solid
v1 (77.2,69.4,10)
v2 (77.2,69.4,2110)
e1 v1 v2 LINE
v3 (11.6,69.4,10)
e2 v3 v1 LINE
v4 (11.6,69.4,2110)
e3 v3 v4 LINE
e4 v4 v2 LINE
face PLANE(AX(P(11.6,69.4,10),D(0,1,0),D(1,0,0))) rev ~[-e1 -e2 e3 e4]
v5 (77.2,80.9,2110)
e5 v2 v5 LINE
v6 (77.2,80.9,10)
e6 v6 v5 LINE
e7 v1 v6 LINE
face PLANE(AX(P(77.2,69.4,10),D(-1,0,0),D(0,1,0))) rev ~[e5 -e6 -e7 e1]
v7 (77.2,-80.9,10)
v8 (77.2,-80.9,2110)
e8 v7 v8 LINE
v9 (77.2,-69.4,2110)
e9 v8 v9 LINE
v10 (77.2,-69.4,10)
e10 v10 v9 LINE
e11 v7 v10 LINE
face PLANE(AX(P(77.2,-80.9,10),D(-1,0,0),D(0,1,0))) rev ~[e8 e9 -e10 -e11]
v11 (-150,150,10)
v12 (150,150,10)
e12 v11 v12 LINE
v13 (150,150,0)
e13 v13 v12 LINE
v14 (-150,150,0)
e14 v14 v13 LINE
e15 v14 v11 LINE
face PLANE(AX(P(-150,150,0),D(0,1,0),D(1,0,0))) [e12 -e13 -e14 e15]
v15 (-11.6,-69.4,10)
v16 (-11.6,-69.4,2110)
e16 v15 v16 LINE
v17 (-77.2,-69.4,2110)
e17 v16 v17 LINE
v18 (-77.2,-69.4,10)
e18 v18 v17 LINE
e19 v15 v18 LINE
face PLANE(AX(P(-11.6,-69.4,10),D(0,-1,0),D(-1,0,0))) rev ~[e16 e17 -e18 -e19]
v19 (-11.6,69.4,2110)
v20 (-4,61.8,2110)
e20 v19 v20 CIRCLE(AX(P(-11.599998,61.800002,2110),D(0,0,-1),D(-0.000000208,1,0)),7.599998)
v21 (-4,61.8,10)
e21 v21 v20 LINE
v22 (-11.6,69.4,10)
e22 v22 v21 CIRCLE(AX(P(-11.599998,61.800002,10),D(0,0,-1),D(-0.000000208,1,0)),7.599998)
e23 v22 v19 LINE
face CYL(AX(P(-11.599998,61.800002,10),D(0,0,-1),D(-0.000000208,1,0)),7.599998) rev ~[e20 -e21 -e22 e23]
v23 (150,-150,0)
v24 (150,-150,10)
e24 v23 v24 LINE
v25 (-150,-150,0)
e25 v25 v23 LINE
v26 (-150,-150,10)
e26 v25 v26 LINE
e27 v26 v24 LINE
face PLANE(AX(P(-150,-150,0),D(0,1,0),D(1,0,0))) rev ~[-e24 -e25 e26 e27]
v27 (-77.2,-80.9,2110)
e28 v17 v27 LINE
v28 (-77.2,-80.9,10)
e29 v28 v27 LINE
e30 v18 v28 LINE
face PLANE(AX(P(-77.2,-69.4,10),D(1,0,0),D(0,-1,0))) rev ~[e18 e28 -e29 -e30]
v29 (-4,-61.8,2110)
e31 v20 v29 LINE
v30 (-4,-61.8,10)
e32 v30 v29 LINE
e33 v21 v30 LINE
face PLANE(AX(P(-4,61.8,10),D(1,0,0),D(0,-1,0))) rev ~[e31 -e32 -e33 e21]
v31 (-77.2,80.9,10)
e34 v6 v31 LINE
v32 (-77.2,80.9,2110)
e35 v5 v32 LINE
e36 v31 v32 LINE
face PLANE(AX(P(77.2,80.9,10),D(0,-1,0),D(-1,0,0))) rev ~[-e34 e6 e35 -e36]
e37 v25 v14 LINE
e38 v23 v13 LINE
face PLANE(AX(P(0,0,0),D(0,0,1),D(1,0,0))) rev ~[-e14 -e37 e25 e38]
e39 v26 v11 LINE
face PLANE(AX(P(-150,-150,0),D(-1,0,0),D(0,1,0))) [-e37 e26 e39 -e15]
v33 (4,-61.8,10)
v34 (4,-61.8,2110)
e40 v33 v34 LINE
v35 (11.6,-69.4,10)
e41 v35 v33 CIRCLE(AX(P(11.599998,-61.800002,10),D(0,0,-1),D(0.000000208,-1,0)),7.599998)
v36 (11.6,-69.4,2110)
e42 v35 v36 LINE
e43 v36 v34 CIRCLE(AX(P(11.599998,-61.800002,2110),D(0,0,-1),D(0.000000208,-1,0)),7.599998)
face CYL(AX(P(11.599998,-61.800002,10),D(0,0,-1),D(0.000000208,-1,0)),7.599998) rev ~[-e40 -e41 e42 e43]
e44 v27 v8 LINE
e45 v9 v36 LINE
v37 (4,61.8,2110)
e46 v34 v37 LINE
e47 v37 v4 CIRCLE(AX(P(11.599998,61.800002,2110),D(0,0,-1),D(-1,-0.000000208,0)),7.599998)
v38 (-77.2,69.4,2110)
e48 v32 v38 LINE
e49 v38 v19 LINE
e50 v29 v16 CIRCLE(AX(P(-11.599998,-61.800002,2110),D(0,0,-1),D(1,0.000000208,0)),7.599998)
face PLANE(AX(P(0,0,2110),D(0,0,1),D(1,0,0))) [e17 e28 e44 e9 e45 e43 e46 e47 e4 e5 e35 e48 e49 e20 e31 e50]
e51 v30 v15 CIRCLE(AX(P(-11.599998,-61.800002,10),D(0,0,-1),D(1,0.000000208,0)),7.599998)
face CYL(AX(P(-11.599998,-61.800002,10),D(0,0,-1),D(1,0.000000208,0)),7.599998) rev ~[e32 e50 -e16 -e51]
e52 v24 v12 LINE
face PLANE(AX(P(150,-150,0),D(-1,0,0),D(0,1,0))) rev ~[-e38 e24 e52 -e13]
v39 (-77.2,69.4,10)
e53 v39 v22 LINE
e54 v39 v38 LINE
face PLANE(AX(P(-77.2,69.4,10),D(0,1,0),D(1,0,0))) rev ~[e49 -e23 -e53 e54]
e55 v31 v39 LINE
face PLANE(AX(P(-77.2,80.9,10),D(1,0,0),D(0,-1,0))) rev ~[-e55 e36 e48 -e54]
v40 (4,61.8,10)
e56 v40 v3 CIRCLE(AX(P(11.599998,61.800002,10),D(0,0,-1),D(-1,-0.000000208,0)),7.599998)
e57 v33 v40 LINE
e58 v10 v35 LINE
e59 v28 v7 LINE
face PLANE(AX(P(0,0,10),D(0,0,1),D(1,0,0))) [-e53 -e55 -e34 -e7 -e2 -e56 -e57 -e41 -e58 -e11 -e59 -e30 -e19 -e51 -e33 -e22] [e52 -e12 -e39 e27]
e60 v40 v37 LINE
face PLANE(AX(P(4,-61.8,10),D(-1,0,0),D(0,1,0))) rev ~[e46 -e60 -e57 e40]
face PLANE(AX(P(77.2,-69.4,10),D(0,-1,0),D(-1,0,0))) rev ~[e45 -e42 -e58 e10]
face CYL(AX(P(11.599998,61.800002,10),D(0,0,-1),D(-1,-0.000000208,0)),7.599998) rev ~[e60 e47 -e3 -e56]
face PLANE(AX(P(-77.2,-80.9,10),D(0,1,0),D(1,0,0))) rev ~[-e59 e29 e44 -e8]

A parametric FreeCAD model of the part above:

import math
import FreeCAD as App
import Part
import Sketcher
from FreeCAD import Vector
Q = App.Units.Quantity

doc = App.newDocument("Part")
body = doc.addObject("PartDesign::Body", "Body")

sketch1 = body.newObject("Sketcher::SketchObject", "Sketch")
sketch1.AttachmentSupport = (doc.getObject("XY_Plane"), [""])
sketch1.MapMode = "FlatFace"
sketch1.addGeometry(Part.LineSegment(Vector(-150, 150, 0), Vector(-150, -150, 0)), False)
sketch1.addGeometry(Part.LineSegment(Vector(-150, -150, 0), Vector(150, -150, 0)), False)
sketch1.addGeometry(Part.LineSegment(Vector(150, -150, 0), Vector(150, 150, 0)), False)
sketch1.addGeometry(Part.LineSegment(Vector(150, 150, 0), Vector(-150, 150, 0)), False)
sketch1.addConstraint(Sketcher.Constraint("Coincident", 0, 2, 1, 1))
sketch1.addConstraint(Sketcher.Constraint("Coincident", 1, 2, 2, 1))
sketch1.addConstraint(Sketcher.Constraint("Coincident", 2, 2, 3, 1))
sketch1.addConstraint(Sketcher.Constraint("Coincident", 3, 2, 0, 1))
sketch1.addConstraint(Sketcher.Constraint("Vertical", 0))
sketch1.addConstraint(Sketcher.Constraint("Horizontal", 1))
sketch1.addConstraint(Sketcher.Constraint("Vertical", 2))
sketch1.addConstraint(Sketcher.Constraint("Horizontal", 3))
sketch1.addConstraint(Sketcher.Constraint("Symmetric", 0, 2, 2, 2, -1, 1))
sketch1.addConstraint(Sketcher.Constraint("Equal", 3, 0))
sketch1.addConstraint(Sketcher.Constraint("DistanceX", 1, 1, 1, 2, Q("300 mm")))
pad1 = body.newObject("PartDesign::Pad", "Pad")
pad1.Profile = sketch1
pad1.Length = 10

sketch2 = body.newObject("Sketcher::SketchObject", "Sketch001")
sketch2.AttachmentSupport = (doc.getObject("XY_Plane"), [""])
sketch2.MapMode = "FlatFace"
sketch2.AttachmentOffset = App.Placement(Vector(0, 0, 10), App.Rotation())
sketch2.addGeometry(Part.LineSegment(Vector(77, 81, 0), Vector(-77, 81, 0)), False)
sketch2.addGeometry(Part.LineSegment(Vector(-77, 81, 0), Vector(-77, 69, 0)), False)
sketch2.addGeometry(Part.LineSegment(Vector(-77, 69, 0), Vector(-12, 69, 0)), False)
sketch2.addGeometry(Part.ArcOfCircle(Part.Circle(Vector(-12, 62, 0), Vector(0, 0, 1), 8), math.radians(0), math.radians(90)), False)
sketch2.addGeometry(Part.LineSegment(Vector(-4, 62, 0), Vector(-4, -62, 0)), False)
sketch2.addGeometry(Part.ArcOfCircle(Part.Circle(Vector(-12, -62, 0), Vector(0, 0, 1), 8), math.radians(-90), math.radians(0)), False)
sketch2.addGeometry(Part.LineSegment(Vector(-12, -69, 0), Vector(-77, -69, 0)), False)
sketch2.addGeometry(Part.LineSegment(Vector(-77, -69, 0), Vector(-77, -81, 0)), False)
sketch2.addGeometry(Part.LineSegment(Vector(-77, -81, 0), Vector(77, -81, 0)), False)
sketch2.addGeometry(Part.LineSegment(Vector(77, -81, 0), Vector(77, -69, 0)), False)
sketch2.addGeometry(Part.LineSegment(Vector(77, -69, 0), Vector(12, -69, 0)), False)
sketch2.addGeometry(Part.ArcOfCircle(Part.Circle(Vector(12, -62, 0), Vector(0, 0, 1), 8), math.radians(180), math.radians(270)), False)
sketch2.addGeometry(Part.LineSegment(Vector(4, -62, 0), Vector(4, 62, 0)), False)
sketch2.addGeometry(Part.ArcOfCircle(Part.Circle(Vector(12, 62, 0), Vector(0, 0, 1), 8), math.radians(90), math.radians(180)), False)
sketch2.addGeometry(Part.LineSegment(Vector(12, 69, 0), Vector(77, 69, 0)), False)
sketch2.addGeometry(Part.LineSegment(Vector(77, 69, 0), Vector(77, 81, 0)), False)
sketch2.addConstraint(Sketcher.Constraint("Coincident", 0, 2, 1, 1))
sketch2.addConstraint(Sketcher.Constraint("Coincident", 1, 2, 2, 1))
sketch2.addConstraint(Sketcher.Constraint("Tangent", 2, 2, 3, 2))
sketch2.addConstraint(Sketcher.Constraint("Tangent", 3, 1, 4, 1))
sketch2.addConstraint(Sketcher.Constraint("Tangent", 4, 2, 5, 2))
sketch2.addConstraint(Sketcher.Constraint("Tangent", 5, 1, 6, 1))
sketch2.addConstraint(Sketcher.Constraint("Coincident", 6, 2, 7, 1))
sketch2.addConstraint(Sketcher.Constraint("Coincident", 7, 2, 8, 1))
sketch2.addConstraint(Sketcher.Constraint("Coincident", 8, 2, 9, 1))
sketch2.addConstraint(Sketcher.Constraint("Coincident", 9, 2, 10, 1))
sketch2.addConstraint(Sketcher.Constraint("Tangent", 10, 2, 11, 2))
sketch2.addConstraint(Sketcher.Constraint("Tangent", 11, 1, 12, 1))
sketch2.addConstraint(Sketcher.Constraint("Tangent", 12, 2, 13, 2))
sketch2.addConstraint(Sketcher.Constraint("Tangent", 13, 1, 14, 1))
sketch2.addConstraint(Sketcher.Constraint("Coincident", 14, 2, 15, 1))
sketch2.addConstraint(Sketcher.Constraint("Coincident", 15, 2, 0, 1))
sketch2.addConstraint(Sketcher.Constraint("Horizontal", 0))
sketch2.addConstraint(Sketcher.Constraint("Vertical", 1))
sketch2.addConstraint(Sketcher.Constraint("Horizontal", 2))
sketch2.addConstraint(Sketcher.Constraint("Vertical", 4))
sketch2.addConstraint(Sketcher.Constraint("Horizontal", 6))
sketch2.addConstraint(Sketcher.Constraint("Vertical", 7))
sketch2.addConstraint(Sketcher.Constraint("Horizontal", 8))
sketch2.addConstraint(Sketcher.Constraint("Vertical", 9))
sketch2.addConstraint(Sketcher.Constraint("Horizontal", 10))
sketch2.addConstraint(Sketcher.Constraint("Vertical", 12))
sketch2.addConstraint(Sketcher.Constraint("Horizontal", 14))
sketch2.addConstraint(Sketcher.Constraint("Vertical", 15))
sketch2.addConstraint(Sketcher.Constraint("Equal", 3, 5))
sketch2.addConstraint(Sketcher.Constraint("Equal", 5, 11))
sketch2.addConstraint(Sketcher.Constraint("Equal", 11, 13))
sketch2.addConstraint(Sketcher.Constraint("Symmetric", 3, 3, 11, 3, -1, 1))
sketch2.addConstraint(Sketcher.Constraint("Symmetric", 0, 2, 8, 2, -1, 1))
sketch2.addConstraint(Sketcher.Constraint("Symmetric", 6, 2, 14, 2, -1, 1))
sketch2.addConstraint(Sketcher.Constraint("Symmetric", 6, 2, 9, 2, -2))
sketch2.addConstraint(Sketcher.Constraint("Radius", 3, Q("7.599998 mm")))
sketch2.addConstraint(Sketcher.Constraint("DistanceX", 0, 2, 0, 1, Q("154.4 mm")))
sketch2.addConstraint(Sketcher.Constraint("DistanceX", 2, 1, 2, 2, Q("65.6 mm")))
sketch2.addConstraint(Sketcher.Constraint("DistanceY", 1, 2, 1, 1, Q("11.5 mm")))
sketch2.addConstraint(Sketcher.Constraint("DistanceY", 4, 2, 4, 1, Q("123.6 mm")))
pad2 = body.newObject("PartDesign::Pad", "Pad001")
pad2.Profile = sketch2
pad2.Length = 2100

doc.recompute()
